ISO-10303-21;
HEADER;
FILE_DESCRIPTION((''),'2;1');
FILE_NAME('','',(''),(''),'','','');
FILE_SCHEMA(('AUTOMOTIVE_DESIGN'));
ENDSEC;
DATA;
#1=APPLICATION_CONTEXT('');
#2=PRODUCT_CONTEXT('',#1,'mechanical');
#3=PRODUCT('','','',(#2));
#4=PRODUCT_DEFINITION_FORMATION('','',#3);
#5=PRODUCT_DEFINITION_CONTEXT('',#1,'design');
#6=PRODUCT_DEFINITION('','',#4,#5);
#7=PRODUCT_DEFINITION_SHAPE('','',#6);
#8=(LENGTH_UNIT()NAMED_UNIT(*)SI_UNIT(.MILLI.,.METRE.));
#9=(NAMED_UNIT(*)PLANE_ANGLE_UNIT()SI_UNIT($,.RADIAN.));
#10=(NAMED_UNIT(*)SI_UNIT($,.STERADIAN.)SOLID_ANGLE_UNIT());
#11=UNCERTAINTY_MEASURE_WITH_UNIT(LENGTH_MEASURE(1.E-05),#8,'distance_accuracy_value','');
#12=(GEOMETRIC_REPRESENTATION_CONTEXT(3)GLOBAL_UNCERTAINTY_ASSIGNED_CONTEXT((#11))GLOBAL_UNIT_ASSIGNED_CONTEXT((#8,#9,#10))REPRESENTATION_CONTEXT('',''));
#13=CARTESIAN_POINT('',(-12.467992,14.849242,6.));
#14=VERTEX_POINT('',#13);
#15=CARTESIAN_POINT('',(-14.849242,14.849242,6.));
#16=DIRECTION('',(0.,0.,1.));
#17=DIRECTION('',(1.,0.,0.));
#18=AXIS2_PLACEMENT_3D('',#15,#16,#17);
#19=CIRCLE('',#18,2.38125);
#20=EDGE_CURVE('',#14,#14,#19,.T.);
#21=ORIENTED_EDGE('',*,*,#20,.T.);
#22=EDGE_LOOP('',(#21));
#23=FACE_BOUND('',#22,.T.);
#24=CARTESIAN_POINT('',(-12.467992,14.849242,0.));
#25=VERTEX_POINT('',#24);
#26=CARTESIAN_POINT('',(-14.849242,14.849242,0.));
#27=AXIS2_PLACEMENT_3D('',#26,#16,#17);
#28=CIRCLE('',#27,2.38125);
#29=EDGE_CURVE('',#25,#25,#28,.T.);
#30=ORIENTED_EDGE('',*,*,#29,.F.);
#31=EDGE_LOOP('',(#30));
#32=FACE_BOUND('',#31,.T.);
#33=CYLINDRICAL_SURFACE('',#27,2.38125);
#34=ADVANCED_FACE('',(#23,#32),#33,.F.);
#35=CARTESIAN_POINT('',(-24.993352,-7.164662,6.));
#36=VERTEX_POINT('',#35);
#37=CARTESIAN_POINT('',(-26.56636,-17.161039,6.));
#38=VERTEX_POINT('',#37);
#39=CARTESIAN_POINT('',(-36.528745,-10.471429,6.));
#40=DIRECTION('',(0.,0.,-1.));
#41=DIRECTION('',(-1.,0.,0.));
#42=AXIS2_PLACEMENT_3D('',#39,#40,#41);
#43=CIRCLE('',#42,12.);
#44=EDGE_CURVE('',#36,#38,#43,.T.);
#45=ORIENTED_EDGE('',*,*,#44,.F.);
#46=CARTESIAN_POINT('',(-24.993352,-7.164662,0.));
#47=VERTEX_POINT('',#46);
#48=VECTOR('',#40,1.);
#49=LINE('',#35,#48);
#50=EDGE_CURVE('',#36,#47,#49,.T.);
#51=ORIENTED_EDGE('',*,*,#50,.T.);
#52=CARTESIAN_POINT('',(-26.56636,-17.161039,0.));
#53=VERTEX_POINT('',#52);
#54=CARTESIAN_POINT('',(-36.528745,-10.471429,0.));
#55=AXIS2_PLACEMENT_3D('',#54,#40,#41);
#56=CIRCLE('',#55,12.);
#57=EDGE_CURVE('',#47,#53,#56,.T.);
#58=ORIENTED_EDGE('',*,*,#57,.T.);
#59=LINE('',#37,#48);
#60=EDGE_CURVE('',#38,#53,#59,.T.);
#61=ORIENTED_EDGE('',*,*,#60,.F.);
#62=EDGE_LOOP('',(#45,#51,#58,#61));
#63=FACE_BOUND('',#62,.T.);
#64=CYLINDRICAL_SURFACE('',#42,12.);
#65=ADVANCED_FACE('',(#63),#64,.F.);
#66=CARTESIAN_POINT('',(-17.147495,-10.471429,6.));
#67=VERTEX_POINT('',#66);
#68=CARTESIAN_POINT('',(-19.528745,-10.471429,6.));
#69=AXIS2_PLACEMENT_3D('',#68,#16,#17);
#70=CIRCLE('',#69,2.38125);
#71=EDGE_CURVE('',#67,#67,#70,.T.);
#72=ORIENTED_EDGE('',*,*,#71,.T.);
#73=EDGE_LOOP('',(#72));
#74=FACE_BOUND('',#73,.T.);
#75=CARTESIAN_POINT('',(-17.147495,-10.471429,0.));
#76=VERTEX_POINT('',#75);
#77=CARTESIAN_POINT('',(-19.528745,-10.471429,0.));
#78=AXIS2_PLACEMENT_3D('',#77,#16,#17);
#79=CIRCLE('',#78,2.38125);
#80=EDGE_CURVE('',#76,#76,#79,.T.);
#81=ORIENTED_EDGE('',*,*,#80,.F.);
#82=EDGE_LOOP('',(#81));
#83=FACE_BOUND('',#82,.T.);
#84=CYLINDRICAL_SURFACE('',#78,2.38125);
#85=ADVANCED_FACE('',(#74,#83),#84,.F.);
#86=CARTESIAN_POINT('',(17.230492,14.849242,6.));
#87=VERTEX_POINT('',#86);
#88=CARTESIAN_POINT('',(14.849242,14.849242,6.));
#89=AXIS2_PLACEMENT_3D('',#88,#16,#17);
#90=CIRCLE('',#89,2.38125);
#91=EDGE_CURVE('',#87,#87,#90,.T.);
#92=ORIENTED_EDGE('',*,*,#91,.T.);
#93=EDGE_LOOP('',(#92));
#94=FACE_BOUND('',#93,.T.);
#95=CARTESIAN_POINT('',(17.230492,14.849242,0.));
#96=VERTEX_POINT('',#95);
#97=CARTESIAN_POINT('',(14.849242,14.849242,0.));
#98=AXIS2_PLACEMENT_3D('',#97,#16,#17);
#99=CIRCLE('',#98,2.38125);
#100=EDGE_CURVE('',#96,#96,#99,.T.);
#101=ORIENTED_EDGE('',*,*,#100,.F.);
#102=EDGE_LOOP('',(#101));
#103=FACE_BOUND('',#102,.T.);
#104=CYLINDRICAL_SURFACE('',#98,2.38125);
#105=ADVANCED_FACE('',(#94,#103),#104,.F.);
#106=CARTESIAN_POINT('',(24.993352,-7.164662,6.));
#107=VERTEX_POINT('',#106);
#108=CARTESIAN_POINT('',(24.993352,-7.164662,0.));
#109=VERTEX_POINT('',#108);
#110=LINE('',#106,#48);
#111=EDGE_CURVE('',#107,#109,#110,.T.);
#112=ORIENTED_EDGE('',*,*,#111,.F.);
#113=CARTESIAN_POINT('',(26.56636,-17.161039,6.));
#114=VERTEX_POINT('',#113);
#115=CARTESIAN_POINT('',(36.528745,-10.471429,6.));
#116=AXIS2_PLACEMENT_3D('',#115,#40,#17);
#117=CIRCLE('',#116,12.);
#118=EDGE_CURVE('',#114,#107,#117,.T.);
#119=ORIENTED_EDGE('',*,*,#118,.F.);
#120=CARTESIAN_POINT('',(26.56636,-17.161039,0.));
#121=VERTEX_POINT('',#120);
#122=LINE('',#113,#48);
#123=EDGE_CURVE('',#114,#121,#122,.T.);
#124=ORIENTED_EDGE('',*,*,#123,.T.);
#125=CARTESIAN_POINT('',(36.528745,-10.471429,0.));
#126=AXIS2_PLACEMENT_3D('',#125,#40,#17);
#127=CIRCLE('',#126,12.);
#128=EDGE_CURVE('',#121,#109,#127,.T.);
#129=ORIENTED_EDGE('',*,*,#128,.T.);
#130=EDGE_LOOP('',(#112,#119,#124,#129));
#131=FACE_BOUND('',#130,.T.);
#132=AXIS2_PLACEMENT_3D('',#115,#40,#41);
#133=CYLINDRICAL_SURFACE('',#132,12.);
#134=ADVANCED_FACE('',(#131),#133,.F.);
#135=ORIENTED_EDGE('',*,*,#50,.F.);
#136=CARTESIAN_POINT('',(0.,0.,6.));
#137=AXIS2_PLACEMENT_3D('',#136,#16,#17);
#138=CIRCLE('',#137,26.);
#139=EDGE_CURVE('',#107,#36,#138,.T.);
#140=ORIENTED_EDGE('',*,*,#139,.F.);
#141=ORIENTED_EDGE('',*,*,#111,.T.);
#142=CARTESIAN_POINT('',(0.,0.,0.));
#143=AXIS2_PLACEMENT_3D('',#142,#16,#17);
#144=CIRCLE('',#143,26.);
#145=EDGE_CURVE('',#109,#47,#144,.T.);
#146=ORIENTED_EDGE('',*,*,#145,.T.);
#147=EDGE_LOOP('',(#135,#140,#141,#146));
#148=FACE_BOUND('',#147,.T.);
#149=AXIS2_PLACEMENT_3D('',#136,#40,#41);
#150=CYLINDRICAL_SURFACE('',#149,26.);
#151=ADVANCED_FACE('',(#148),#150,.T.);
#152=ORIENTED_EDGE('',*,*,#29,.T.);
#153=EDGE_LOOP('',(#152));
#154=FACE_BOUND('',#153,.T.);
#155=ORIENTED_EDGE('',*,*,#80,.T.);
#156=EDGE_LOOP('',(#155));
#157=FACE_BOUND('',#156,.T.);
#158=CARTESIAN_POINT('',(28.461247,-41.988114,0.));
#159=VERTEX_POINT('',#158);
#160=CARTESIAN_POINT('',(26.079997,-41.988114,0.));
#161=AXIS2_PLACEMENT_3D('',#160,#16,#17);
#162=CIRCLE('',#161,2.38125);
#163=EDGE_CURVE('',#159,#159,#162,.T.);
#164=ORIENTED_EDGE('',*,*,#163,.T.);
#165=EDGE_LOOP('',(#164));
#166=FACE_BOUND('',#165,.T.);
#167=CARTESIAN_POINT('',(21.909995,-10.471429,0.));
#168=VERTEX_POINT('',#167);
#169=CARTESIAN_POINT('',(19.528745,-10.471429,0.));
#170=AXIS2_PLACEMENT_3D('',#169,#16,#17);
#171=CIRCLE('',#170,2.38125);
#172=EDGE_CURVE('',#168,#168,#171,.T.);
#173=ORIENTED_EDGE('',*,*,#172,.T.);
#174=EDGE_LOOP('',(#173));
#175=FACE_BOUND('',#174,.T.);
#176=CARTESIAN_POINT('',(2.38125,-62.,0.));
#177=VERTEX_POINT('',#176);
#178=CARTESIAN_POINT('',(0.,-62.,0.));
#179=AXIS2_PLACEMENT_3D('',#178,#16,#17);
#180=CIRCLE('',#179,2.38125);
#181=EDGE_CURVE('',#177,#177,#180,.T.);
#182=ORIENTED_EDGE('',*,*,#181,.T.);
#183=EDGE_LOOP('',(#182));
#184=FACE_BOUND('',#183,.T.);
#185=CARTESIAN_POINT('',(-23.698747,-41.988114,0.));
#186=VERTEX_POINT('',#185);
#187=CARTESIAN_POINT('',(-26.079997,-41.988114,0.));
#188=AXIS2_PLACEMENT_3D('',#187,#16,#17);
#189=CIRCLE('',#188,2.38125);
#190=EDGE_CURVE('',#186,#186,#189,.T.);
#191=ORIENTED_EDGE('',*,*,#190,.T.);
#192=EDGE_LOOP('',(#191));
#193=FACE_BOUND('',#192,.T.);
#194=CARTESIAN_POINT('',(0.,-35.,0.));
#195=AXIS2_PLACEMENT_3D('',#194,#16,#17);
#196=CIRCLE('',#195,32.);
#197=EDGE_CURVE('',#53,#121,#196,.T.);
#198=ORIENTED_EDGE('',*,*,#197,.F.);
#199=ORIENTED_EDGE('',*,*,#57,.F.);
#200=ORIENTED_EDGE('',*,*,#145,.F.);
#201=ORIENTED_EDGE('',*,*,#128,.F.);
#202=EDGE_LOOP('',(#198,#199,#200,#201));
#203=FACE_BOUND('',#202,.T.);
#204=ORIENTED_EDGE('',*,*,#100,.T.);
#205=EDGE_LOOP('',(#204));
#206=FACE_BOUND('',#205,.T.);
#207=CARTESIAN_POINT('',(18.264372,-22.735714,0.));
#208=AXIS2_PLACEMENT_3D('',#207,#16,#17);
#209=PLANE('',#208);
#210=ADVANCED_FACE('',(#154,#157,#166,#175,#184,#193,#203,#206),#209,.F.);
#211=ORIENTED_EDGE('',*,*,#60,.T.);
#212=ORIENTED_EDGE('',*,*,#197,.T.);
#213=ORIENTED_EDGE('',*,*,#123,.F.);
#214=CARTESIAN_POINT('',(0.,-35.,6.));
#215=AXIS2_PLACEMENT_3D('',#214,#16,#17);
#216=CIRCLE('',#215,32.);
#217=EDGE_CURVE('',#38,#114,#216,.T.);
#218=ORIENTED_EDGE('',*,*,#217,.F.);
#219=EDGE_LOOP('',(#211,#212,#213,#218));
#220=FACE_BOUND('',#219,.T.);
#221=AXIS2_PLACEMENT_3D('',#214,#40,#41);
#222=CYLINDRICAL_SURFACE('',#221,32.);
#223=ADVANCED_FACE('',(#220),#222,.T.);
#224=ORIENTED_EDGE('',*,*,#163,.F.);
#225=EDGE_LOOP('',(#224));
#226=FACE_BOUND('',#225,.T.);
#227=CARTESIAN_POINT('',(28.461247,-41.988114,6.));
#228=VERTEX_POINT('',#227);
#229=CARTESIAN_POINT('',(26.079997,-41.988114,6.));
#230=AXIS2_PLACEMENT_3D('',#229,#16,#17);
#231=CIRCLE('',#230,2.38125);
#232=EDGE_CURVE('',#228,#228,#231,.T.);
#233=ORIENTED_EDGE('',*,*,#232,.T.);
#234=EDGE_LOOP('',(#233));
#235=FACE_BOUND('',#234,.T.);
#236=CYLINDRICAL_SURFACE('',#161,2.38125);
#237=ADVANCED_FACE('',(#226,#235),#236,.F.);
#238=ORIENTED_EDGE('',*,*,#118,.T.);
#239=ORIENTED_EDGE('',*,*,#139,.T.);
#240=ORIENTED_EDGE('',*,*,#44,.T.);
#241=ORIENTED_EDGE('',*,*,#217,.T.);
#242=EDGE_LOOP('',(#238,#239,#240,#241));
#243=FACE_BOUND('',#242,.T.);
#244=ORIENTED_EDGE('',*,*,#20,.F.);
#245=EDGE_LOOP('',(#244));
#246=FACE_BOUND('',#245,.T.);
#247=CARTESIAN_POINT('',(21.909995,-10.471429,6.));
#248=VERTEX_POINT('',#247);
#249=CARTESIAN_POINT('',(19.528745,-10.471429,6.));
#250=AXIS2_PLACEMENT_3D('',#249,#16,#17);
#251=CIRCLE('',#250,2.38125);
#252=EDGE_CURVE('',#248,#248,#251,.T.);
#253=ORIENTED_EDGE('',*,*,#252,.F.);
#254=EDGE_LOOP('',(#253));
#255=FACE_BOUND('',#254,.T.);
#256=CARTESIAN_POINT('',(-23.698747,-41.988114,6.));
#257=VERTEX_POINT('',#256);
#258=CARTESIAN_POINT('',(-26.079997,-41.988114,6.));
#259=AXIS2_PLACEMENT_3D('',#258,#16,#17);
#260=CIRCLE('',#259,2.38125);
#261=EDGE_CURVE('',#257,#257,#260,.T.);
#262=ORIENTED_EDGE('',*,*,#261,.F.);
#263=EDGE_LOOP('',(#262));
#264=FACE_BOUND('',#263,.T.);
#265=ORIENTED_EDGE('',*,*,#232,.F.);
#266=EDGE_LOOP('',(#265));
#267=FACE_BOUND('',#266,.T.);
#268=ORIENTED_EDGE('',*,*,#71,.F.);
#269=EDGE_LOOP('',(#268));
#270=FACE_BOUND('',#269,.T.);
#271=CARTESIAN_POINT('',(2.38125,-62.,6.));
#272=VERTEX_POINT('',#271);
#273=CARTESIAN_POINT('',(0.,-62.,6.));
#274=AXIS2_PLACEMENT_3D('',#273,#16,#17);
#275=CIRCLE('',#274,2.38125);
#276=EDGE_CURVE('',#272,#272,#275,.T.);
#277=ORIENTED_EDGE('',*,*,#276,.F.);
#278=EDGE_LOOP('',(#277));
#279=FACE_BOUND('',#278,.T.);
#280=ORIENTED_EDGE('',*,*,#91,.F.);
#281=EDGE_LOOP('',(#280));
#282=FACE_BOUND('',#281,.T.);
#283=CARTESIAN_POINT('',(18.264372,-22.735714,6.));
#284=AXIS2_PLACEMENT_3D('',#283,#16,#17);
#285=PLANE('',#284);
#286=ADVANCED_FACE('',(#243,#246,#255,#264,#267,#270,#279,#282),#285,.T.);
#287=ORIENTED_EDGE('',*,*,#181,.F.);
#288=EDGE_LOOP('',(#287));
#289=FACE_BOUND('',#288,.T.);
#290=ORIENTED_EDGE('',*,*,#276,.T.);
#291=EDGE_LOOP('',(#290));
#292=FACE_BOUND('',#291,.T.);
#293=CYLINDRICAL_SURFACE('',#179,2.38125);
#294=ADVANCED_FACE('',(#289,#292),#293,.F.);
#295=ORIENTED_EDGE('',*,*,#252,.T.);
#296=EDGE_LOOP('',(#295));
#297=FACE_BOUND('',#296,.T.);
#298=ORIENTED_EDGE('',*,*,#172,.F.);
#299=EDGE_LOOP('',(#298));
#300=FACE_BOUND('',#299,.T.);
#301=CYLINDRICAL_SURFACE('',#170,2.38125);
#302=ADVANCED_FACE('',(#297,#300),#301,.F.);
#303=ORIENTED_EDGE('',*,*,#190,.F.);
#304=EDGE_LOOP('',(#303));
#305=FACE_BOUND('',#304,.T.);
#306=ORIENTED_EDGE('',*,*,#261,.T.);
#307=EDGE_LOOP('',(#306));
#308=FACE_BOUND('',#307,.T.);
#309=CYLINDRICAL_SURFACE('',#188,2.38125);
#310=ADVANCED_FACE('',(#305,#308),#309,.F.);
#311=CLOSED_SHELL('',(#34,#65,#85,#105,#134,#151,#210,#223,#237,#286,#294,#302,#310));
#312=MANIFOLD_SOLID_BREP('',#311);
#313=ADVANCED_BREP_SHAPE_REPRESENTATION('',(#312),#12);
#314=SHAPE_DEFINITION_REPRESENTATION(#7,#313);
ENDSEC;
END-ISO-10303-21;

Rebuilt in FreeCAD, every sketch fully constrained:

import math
import FreeCAD as App
import Part
import Sketcher

V = App.Vector
Q = App.Units.Quantity

doc = App.newDocument("Part")
body = doc.addObject("PartDesign::Body", "Body")

sketch1 = body.newObject("Sketcher::SketchObject", "Sketch")
sketch1.AttachmentSupport = (doc.getObject("XY_Plane"), [""])
sketch1.MapMode = "FlatFace"
sketch1.addGeometry([
    Part.ArcOfCircle(Part.Circle(V(0, 0, 0), V(0, 0, 1), 26), math.radians(-16), math.radians(196)),
    Part.ArcOfCircle(Part.Circle(V(-37, -10, 0), V(0, 0, 1), 12), math.radians(-34), math.radians(16)),
    Part.ArcOfCircle(Part.Circle(V(0, -35, 0), V(0, 0, 1), 32), math.radians(146), math.radians(394)),
    Part.ArcOfCircle(Part.Circle(V(37, -10, 0), V(0, 0, 1), 12), math.radians(164), math.radians(214)),
], False)
sketch1.addConstraint([
    Sketcher.Constraint("Tangent", 0, 2, 1, 2),
    Sketcher.Constraint("Tangent", 1, 1, 2, 1),
    Sketcher.Constraint("Tangent", 2, 2, 3, 2),
    Sketcher.Constraint("Tangent", 3, 1, 0, 1),
    Sketcher.Constraint("Coincident", 0, 3, -1, 1),
    Sketcher.Constraint("Equal", 1, 3),
    Sketcher.Constraint("PointOnObject", 2, 3, -2),
    Sketcher.Constraint("Radius", 0, Q("26 mm")),
    Sketcher.Constraint("Radius", 1, Q("12 mm")),
    Sketcher.Constraint("Radius", 2, Q("32 mm")),
    Sketcher.Constraint("DistanceY", 2, 3, -1, 1, Q("35 mm")),
])
pad1 = body.newObject("PartDesign::Pad", "Pad")
pad1.Profile = sketch1
pad1.Length = 6

sketch2 = body.newObject("Sketcher::SketchObject", "Sketch001")
sketch2.AttachmentSupport = (doc.getObject("XY_Plane"), [""])
sketch2.MapMode = "FlatFace"
sketch2.AttachmentOffset = App.Placement(V(0, 0, 6), App.Rotation())
sketch2.addGeometry([
    Part.Circle(V(-14.8, 14.8, 0), V(0, 0, 1), 2.4),
    Part.Circle(V(-19.5, -10.5, 0), V(0, 0, 1), 2.4),
    Part.Circle(V(14.8, 14.8, 0), V(0, 0, 1), 2.4),
    Part.Circle(V(19.5, -10.5, 0), V(0, 0, 1), 2.4),
    Part.Circle(V(-26.1, -42, 0), V(0, 0, 1), 2.4),
    Part.Circle(V(0, -62, 0), V(0, 0, 1), 2.4),
    Part.Circle(V(26.1, -42, 0), V(0, 0, 1), 2.4),
], False)
sketch2.addConstraint([
    Sketcher.Constraint("Equal", 0, 1),
    Sketcher.Constraint("Equal", 1, 2),
    Sketcher.Constraint("Equal", 2, 3),
    Sketcher.Constraint("Equal", 3, 4),
    Sketcher.Constraint("Equal", 4, 5),
    Sketcher.Constraint("Equal", 5, 6),
    Sketcher.Constraint("Symmetric", 0, 3, 2, 3, -2),
    Sketcher.Constraint("Symmetric", 1, 3, 3, 3, -2),
    Sketcher.Constraint("Symmetric", 4, 3, 6, 3, -2),
    Sketcher.Constraint("PointOnObject", 5, 3, -2),
    Sketcher.Constraint("DistanceY", 5, 3, -1, 1, Q("62 mm")),
    Sketcher.Constraint("Diameter", 0, Q("4.7625 mm")),
    Sketcher.Constraint("DistanceY", 1, 3, -1, 1, Q("10.471429 mm")),
    Sketcher.Constraint("DistanceY", 1, 3, 0, 3, Q("25.320671 mm")),
    Sketcher.Constraint("DistanceX", 1, 3, 3, 3, Q("39.057489 mm")),
    Sketcher.Constraint("DistanceX", 4, 3, 3, 3, Q("45.608742 mm")),
    Sketcher.Constraint("DistanceX", 4, 3, 2, 3, Q("40.92924 mm")),
    Sketcher.Constraint("DistanceY", 4, 3, -1, 1, Q("41.988114 mm")),
])
pocket1 = body.newObject("PartDesign::Pocket", "Pocket")
pocket1.Profile = sketch2
pocket1.Type = "ThroughAll"

doc.recompute()
